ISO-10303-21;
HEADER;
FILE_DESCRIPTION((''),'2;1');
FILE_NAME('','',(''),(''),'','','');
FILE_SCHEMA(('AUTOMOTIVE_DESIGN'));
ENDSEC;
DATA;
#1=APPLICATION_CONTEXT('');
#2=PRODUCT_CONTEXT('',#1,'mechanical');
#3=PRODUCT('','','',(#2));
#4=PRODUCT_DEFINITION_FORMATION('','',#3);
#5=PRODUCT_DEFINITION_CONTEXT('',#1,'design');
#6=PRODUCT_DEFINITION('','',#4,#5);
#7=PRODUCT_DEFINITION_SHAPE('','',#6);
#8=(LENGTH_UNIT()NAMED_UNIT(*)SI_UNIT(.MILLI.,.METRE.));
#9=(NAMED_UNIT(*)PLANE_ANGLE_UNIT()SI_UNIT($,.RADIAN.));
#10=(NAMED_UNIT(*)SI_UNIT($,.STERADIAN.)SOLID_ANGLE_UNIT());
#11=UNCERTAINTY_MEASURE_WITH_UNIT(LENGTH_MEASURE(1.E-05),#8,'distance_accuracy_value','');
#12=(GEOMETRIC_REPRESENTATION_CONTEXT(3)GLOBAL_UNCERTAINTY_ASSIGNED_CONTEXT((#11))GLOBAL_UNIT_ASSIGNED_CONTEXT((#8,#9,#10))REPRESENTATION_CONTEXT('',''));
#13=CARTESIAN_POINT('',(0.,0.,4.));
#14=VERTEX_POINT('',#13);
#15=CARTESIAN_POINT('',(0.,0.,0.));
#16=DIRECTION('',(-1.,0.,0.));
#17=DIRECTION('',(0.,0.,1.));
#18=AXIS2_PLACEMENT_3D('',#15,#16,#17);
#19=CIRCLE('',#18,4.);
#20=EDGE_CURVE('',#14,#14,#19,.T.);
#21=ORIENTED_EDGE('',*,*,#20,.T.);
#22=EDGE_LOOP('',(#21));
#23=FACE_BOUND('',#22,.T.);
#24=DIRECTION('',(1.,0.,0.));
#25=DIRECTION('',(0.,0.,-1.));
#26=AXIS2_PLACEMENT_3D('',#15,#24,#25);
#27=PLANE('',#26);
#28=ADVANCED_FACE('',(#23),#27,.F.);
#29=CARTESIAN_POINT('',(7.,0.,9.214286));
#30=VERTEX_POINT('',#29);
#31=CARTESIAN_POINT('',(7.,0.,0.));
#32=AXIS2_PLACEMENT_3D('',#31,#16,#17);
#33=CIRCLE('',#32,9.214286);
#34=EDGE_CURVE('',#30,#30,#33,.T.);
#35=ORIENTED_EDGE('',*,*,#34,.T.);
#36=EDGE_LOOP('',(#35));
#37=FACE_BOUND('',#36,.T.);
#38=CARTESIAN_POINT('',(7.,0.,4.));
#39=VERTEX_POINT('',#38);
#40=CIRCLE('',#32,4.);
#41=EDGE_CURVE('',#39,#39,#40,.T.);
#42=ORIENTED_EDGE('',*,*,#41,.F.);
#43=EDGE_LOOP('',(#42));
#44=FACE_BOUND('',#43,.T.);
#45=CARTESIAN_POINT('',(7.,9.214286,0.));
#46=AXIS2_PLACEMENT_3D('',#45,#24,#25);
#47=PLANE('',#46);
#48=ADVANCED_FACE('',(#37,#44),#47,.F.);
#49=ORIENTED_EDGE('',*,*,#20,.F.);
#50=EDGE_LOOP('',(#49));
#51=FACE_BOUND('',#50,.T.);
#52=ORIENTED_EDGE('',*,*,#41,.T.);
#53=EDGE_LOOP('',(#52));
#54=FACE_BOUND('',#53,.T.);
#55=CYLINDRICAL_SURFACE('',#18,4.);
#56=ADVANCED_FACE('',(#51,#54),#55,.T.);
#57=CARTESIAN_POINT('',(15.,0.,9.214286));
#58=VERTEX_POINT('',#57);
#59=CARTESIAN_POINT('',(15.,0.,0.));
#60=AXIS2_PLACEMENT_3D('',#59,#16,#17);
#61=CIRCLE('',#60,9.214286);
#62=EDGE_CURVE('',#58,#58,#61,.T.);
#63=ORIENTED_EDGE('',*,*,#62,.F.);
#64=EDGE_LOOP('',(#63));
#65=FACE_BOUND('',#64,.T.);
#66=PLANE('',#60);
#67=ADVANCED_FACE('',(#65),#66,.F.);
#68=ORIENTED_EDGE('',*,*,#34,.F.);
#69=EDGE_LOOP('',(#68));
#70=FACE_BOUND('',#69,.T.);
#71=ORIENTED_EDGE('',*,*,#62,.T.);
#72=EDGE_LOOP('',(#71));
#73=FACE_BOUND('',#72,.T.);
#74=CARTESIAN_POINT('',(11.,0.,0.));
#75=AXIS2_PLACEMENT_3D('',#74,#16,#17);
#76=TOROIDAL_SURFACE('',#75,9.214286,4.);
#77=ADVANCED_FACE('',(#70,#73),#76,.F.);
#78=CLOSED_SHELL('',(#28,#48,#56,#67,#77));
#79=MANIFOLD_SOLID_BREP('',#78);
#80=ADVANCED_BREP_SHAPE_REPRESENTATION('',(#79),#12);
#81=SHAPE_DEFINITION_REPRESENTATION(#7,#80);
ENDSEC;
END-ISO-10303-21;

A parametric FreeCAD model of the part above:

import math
import FreeCAD as App
import Part
import Sketcher

V = App.Vector
Q = App.Units.Quantity

doc = App.newDocument("Part")
params = doc.addObject("Spreadsheet::Sheet", "Params")
for row, (alias, value) in enumerate([
    ("sketch1_radius", "4 mm"),
    ("sketch1_width", "7 mm"),
    ("sketch1_height", "4 mm"),
    ("revolution_angle", "360 deg"),
], start=1):
    params.set(f"A{row}", alias)
    params.set(f"B{row}", "=" + value)
    params.setAlias(f"B{row}", alias)

body = doc.addObject("PartDesign::Body", "Body")

sketch1 = body.newObject("Sketcher::SketchObject", "Sketch")
sketch1.AttachmentSupport = (doc.getObject("XY_Plane"), [""])
sketch1.MapMode = "FlatFace"
sketch1.addGeometry([
    Part.LineSegment(V(7, 9.2, 0), V(7, 4, 0)),
    Part.LineSegment(V(7, 4, 0), V(0, 4, 0)),
    Part.LineSegment(V(0, 4, 0), V(0, 0, 0)),
    Part.LineSegment(V(0, 0, 0), V(15, 0, 0)),
    Part.LineSegment(V(15, 0, 0), V(15, 9.2, 0)),
    Part.ArcOfCircle(Part.Circle(V(11, 9.2, 0), V(0, 0, 1), 4), math.radians(180), math.radians(360)),
], False)
sketch1.addConstraint([
    Sketcher.Constraint("Coincident", 0, 2, 1, 1),
    Sketcher.Constraint("Coincident", 1, 2, 2, 1),
    Sketcher.Constraint("Coincident", 2, 2, 3, 1),
    Sketcher.Constraint("Coincident", 3, 2, 4, 1),
    Sketcher.Constraint("Tangent", 4, 2, 5, 2),
    Sketcher.Constraint("Tangent", 5, 1, 0, 1),
    Sketcher.Constraint("Vertical", 0),
    Sketcher.Constraint("Horizontal", 1),
    Sketcher.Constraint("Vertical", 2),
    Sketcher.Constraint("Horizontal", 3),
    Sketcher.Constraint("Vertical", 4),
    Sketcher.Constraint("Coincident", 2, 2, -1, 1),
    Sketcher.Constraint("Radius", 5, Q("4 mm")),
    Sketcher.Constraint("DistanceX", 1, 2, 1, 1, Q("7 mm")),
    Sketcher.Constraint("DistanceY", 2, 2, 2, 1, Q("4 mm")),
    Sketcher.Constraint("DistanceY", 0, 2, 0, 1, Q("5.214286 mm")),
])
sketch1.setExpression("Constraints[12]", "Params.sketch1_radius")
sketch1.setExpression("Constraints[13]", "Params.sketch1_width")
sketch1.setExpression("Constraints[14]", "Params.sketch1_height")
revolution = body.newObject("PartDesign::Revolution", "Revolution")
revolution.Profile = sketch1
revolution.ReferenceAxis = (sketch1, ["H_Axis"])
revolution.setExpression("Angle", "Params.revolution_angle")

doc.recompute()
